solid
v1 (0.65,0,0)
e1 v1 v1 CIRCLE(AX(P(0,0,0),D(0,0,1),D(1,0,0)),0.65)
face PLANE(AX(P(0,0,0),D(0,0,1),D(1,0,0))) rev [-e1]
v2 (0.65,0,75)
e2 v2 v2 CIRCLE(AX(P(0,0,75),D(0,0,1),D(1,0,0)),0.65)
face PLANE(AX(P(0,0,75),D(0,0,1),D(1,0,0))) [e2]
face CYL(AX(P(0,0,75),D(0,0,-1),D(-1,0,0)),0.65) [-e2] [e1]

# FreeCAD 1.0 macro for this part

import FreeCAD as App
import Part
import Sketcher
from FreeCAD import Vector
Q = App.Units.Quantity

doc = App.newDocument("Part")
body = doc.addObject("PartDesign::Body", "Body")

sketch1 = body.newObject("Sketcher::SketchObject", "Sketch")
sketch1.AttachmentSupport = (doc.getObject("XY_Plane"), [""])
sketch1.MapMode = "FlatFace"
sketch1.addGeometry(Part.Circle(Vector(0, 0, 0), Vector(0, 0, 1), 0.7), False)
sketch1.addConstraint([
    Sketcher.Constraint("Coincident", 0, 3, -1, 1),
    Sketcher.Constraint("Diameter", 0, Q("1.3 mm")),
])
pad1 = body.newObject("PartDesign::Pad", "Pad")
pad1.Profile = sketch1
pad1.Length = 75

doc.recompute()
